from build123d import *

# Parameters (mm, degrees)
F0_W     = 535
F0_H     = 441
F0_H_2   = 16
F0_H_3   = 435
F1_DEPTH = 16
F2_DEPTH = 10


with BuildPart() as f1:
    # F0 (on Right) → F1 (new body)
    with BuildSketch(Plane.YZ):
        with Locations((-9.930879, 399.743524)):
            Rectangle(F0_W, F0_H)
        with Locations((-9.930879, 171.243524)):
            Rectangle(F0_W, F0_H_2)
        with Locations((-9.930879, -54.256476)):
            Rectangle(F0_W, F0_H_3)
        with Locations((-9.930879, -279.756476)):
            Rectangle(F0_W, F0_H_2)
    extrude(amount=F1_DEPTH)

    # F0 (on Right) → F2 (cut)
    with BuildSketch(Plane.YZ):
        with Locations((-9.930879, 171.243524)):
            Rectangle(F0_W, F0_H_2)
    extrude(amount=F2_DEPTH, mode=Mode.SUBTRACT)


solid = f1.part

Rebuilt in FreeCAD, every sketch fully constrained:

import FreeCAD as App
import Part
import Sketcher

V = App.Vector
Q = App.Units.Quantity


def add_polygon(sketch, points):
    """Adds a closed chain of lines whose ends are joined by coincident constraints."""
    first, n = sketch.GeometryCount, len(points)
    for a, b in zip(points, points[1:] + points[:1]):
        sketch.addGeometry(Part.LineSegment(App.Vector(*a, 0), App.Vector(*b, 0)), False)
    for i in range(n):
        sketch.addConstraint(Sketcher.Constraint("Coincident", first + i, 2, first + (i + 1) % n, 1))

doc = App.newDocument("Part")
body = doc.addObject("PartDesign::Body", "Body")

# Sketch on YZ plane
sketch1 = body.newObject("Sketcher::SketchObject", "Sketch")
sketch1.AttachmentSupport = (doc.getObject("YZ_Plane"), [""])
sketch1.MapMode = "FlatFace"
add_polygon(sketch1, [(-277, 620), (-277, -288), (258, -288), (258, 620)])  # lines 0-3
sketch1.addConstraint(Sketcher.Constraint("Vertical", 0))
sketch1.addConstraint(Sketcher.Constraint("Horizontal", 1))
sketch1.addConstraint(Sketcher.Constraint("Vertical", 2))
sketch1.addConstraint(Sketcher.Constraint("Horizontal", 3))
sketch1.addConstraint(Sketcher.Constraint("DistanceX", 1, 1, 1, 2, Q("535 mm")))
sketch1.addConstraint(Sketcher.Constraint("DistanceY", 0, 2, 0, 1, Q("908 mm")))
sketch1.addConstraint(Sketcher.Constraint("DistanceX", 0, 2, -1, 1, Q("277.430879 mm")))
sketch1.addConstraint(Sketcher.Constraint("DistanceY", 0, 2, -1, 1, Q("287.756476 mm")))
pad1 = body.newObject("PartDesign::Pad", "Pad")
pad1.Profile = sketch1
pad1.Length = 16

# Sketch on YZ plane
sketch2 = body.newObject("Sketcher::SketchObject", "Sketch001")
sketch2.AttachmentSupport = (doc.getObject("YZ_Plane"), [""])
sketch2.MapMode = "FlatFace"
add_polygon(sketch2, [(-277, 179), (-277, 163), (258, 163), (258, 179)])  # lines 0-3
sketch2.addConstraint(Sketcher.Constraint("Vertical", 0))
sketch2.addConstraint(Sketcher.Constraint("Horizontal", 1))
sketch2.addConstraint(Sketcher.Constraint("Vertical", 2))
sketch2.addConstraint(Sketcher.Constraint("Horizontal", 3))
sketch2.addConstraint(Sketcher.Constraint("DistanceX", 1, 1, 1, 2, Q("535 mm")))
sketch2.addConstraint(Sketcher.Constraint("DistanceY", 0, 2, 0, 1, Q("16 mm")))
sketch2.addConstraint(Sketcher.Constraint("DistanceX", 0, 2, -1, 1, Q("277.430879 mm")))
sketch2.addConstraint(Sketcher.Constraint("DistanceY", -1, 1, 0, 2, Q("163.243524 mm")))
pocket1 = body.newObject("PartDesign::Pocket", "Pocket")
pocket1.Profile = sketch2
pocket1.Length = 10
pocket1.Reversed = True

doc.recompute()
